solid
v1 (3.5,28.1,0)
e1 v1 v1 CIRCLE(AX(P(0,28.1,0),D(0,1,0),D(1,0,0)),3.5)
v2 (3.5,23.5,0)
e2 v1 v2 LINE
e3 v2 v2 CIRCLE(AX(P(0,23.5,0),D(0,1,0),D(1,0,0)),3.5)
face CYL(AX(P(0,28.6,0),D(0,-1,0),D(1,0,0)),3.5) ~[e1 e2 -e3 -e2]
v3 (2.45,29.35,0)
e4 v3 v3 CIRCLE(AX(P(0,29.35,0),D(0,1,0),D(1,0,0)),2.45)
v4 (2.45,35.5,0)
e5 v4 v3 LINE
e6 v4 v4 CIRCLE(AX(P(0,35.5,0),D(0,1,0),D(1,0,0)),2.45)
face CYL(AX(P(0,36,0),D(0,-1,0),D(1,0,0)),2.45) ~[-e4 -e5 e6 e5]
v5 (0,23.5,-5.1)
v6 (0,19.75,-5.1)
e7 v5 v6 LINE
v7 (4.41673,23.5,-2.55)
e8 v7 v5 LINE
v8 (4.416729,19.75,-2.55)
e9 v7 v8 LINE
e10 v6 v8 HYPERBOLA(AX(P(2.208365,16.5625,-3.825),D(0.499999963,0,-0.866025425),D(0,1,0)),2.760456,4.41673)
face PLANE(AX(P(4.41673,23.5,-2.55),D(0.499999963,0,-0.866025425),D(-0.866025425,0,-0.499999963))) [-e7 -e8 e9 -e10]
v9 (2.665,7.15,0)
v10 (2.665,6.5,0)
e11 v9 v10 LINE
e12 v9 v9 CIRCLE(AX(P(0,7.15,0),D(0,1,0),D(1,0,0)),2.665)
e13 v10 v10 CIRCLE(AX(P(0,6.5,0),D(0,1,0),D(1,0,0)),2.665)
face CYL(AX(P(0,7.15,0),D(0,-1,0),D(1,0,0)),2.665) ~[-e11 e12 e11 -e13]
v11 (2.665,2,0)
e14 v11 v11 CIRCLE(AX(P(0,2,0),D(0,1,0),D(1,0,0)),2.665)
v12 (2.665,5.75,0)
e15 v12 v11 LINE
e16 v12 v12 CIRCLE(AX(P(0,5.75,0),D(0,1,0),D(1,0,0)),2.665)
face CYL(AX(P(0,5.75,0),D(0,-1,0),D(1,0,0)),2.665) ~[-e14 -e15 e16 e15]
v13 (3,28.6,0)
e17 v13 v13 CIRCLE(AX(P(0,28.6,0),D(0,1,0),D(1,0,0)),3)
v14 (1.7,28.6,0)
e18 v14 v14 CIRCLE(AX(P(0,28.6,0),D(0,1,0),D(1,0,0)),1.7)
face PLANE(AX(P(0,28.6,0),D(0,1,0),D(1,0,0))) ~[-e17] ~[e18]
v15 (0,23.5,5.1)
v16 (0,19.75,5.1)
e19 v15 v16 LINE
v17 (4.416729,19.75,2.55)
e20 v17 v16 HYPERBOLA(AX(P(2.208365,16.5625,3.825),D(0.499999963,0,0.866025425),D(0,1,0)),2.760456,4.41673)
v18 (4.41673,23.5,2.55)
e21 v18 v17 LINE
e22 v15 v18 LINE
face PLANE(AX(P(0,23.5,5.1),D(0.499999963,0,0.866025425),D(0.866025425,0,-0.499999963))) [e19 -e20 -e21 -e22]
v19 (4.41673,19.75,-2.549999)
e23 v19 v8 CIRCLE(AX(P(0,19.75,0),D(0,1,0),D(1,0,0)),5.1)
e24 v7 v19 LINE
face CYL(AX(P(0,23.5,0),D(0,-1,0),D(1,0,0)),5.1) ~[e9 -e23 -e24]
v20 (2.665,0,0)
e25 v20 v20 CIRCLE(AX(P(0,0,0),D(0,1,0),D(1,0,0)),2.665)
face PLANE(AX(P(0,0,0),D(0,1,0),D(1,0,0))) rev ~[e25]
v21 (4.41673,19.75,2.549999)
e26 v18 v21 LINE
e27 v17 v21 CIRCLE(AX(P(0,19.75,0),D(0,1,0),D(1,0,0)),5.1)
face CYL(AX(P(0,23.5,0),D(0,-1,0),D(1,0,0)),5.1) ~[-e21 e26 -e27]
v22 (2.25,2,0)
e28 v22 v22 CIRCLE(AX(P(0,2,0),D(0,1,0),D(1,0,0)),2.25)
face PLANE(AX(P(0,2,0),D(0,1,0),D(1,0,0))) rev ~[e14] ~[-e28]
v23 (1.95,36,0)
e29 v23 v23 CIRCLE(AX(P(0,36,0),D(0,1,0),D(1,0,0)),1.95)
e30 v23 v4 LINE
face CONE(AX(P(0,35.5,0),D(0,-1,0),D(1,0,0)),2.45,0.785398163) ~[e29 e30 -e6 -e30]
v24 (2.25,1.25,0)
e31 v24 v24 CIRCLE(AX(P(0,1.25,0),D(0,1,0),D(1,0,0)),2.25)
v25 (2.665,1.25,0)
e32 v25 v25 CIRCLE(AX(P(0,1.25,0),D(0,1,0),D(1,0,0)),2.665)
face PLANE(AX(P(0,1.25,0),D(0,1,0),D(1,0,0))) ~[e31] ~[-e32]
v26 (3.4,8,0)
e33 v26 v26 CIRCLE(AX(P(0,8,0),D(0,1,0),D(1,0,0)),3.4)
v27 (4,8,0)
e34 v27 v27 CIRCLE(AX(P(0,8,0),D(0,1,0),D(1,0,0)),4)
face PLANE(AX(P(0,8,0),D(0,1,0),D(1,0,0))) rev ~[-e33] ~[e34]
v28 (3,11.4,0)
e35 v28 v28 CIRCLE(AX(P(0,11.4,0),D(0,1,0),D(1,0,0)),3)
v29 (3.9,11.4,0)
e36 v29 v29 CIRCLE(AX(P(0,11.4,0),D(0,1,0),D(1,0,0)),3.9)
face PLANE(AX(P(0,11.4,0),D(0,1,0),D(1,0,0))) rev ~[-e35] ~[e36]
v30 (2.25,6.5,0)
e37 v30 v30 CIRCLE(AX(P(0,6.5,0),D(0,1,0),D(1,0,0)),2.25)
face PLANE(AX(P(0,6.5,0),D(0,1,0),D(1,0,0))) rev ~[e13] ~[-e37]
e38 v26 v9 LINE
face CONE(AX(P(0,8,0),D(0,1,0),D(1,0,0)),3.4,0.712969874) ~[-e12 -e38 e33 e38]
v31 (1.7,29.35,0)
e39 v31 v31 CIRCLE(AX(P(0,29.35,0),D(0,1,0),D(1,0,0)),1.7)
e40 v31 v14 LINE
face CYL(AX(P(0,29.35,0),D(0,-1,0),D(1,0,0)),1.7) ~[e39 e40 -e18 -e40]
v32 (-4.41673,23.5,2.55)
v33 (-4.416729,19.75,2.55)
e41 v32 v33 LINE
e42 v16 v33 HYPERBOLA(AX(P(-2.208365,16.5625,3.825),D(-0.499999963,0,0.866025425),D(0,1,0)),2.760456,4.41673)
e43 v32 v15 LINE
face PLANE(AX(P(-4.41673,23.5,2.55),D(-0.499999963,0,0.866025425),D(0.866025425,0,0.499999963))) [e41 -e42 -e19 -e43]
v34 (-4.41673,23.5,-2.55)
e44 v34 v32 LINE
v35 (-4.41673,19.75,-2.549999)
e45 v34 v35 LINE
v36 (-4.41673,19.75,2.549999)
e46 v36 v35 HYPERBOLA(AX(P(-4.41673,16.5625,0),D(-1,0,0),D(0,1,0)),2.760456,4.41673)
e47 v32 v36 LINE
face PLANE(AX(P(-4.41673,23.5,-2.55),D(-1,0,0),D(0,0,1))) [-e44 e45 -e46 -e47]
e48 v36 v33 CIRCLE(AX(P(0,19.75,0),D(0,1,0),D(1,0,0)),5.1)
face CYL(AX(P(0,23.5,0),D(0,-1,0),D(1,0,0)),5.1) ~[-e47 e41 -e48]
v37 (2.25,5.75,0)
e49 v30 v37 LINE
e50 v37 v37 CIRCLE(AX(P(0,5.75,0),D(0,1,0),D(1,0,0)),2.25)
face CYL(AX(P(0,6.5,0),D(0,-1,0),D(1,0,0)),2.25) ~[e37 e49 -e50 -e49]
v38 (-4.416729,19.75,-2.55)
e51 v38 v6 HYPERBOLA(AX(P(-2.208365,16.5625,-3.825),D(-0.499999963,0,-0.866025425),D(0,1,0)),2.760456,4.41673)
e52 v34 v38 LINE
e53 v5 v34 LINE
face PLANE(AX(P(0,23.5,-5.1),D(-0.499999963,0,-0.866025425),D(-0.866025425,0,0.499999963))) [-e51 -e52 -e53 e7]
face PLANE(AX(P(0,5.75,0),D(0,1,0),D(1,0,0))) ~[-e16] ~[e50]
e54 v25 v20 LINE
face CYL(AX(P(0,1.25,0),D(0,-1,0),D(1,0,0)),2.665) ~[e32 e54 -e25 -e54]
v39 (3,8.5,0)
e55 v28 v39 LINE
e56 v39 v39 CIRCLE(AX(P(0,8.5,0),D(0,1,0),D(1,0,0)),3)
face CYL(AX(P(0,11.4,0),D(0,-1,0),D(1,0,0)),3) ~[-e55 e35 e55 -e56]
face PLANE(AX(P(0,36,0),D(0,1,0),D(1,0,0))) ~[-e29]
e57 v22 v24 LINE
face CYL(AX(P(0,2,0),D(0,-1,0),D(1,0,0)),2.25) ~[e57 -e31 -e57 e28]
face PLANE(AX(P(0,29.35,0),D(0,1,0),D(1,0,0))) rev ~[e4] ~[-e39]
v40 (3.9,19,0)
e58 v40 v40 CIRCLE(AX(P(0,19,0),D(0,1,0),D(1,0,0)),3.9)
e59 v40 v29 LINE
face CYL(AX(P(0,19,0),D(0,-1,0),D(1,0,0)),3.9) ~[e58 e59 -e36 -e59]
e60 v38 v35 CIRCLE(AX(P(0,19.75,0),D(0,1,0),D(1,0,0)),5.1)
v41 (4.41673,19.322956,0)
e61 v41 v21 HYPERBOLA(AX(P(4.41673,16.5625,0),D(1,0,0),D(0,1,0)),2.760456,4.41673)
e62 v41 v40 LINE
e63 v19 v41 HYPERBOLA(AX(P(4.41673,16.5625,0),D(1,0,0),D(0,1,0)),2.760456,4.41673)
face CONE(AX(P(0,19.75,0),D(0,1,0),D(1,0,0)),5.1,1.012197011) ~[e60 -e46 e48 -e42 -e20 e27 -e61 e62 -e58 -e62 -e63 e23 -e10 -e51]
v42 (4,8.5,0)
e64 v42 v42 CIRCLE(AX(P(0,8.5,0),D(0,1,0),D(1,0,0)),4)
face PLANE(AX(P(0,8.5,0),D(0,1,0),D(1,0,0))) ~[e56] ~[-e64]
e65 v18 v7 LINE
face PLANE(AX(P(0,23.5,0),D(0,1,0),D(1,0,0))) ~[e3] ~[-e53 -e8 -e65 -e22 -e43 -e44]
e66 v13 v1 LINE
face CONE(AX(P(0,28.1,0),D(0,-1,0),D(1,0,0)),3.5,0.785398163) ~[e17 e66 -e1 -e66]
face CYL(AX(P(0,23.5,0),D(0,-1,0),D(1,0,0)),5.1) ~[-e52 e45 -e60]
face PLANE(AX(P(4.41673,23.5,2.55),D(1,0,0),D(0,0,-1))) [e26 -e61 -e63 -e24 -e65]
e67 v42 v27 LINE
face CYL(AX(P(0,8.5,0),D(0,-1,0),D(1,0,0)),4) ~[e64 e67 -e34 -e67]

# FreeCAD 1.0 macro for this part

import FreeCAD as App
import Part
import Sketcher

V = App.Vector
Q = App.Units.Quantity


def edges_at(feature, points):
    """Names of the edges that pass closest to the given points."""
    edges = feature.Shape.Edges
    near = lambda p: min(range(len(edges)), key=lambda i: edges[i].distToShape(Part.Vertex(*p))[0])
    return sorted({f"Edge{near(p) + 1}" for p in points})


def add_polygon(sketch, points):
    """Adds a closed chain of lines whose ends are joined by coincident constraints."""
    first, n = sketch.GeometryCount, len(points)
    for a, b in zip(points, points[1:] + points[:1]):
        sketch.addGeometry(Part.LineSegment(App.Vector(*a, 0), App.Vector(*b, 0)), False)
    for i in range(n):
        sketch.addConstraint(Sketcher.Constraint("Coincident", first + i, 2, first + (i + 1) % n, 1))

doc = App.newDocument("Part")
params = doc.addObject("Spreadsheet::Sheet", "Params")
for row, (alias, value) in enumerate([
    ("sketch1_width", "1 mm"),
    ("sketch1_height", "36 mm"),
    ("sketch1_width2", "0.6 mm"),
    ("sketch1_width3", "0.9 mm"),
    ("sketch1_width4", "1.6 mm"),
    ("revolution_angle", "360 deg"),
    ("sketch2_diameter", "12 mm"),
    ("sketch2_height", "5.1 mm"),
    ("sketch2_length", "5.1 mm"),
    ("pocket1_length", "5 mm"),
    ("chamfer_size", "0.5 mm"),
], start=1):
    params.set(f"A{row}", alias)
    params.set(f"B{row}", "=" + value)
    params.setAlias(f"B{row}", alias)

body = doc.addObject("PartDesign::Body", "Body")

sketch1 = body.newObject("Sketcher::SketchObject", "Sketch")
sketch1.AttachmentSupport = (doc.getObject("XY_Plane"), [""])
sketch1.MapMode = "FlatFace"
add_polygon(sketch1, [(0, 36), (0, 0), (2.67, 0), (2.67, 1.25), (2.25, 1.25), (2.25, 2), (2.67, 2), (2.67, 5.75), (2.25, 5.75), (2.25, 6.5), (2.67, 6.5), (2.67, 7.15), (3.4, 8), (4, 8), (4, 8.5), (3, 8.5), (3, 11.4), (3.9, 11.4), (3.9, 19), (5.1, 19.75), (5.1, 23.5), (3.5, 23.5), (3.5, 28.6), (1.7, 28.6), (1.7, 29.35), (2.45, 29.35), (2.45, 36)])
sketch1.addConstraint([
    Sketcher.Constraint("Vertical", 0),
    Sketcher.Constraint("Horizontal", 1),
    Sketcher.Constraint("Vertical", 2),
    Sketcher.Constraint("Horizontal", 3),
    Sketcher.Constraint("Vertical", 4),
    Sketcher.Constraint("Horizontal", 5),
    Sketcher.Constraint("Vertical", 6),
    Sketcher.Constraint("Horizontal", 7),
    Sketcher.Constraint("Vertical", 8),
    Sketcher.Constraint("Horizontal", 9),
    Sketcher.Constraint("Vertical", 10),
    Sketcher.Constraint("Horizontal", 12),
    Sketcher.Constraint("Vertical", 13),
    Sketcher.Constraint("Horizontal", 14),
    Sketcher.Constraint("Vertical", 15),
    Sketcher.Constraint("Horizontal", 16),
    Sketcher.Constraint("Vertical", 17),
    Sketcher.Constraint("Vertical", 19),
    Sketcher.Constraint("Horizontal", 20),
    Sketcher.Constraint("Vertical", 21),
    Sketcher.Constraint("Horizontal", 22),
    Sketcher.Constraint("Vertical", 23),
    Sketcher.Constraint("Horizontal", 24),
    Sketcher.Constraint("Vertical", 25),
    Sketcher.Constraint("Horizontal", 26),
    Sketcher.Constraint("Coincident", 0, 2, -1, 1),
    Sketcher.Constraint("Vertical", 2, 2, 5, 2),
    Sketcher.Constraint("Vertical", 4, 2, 7, 2),
    Sketcher.Constraint("Vertical", 6, 2, 9, 2),
    Sketcher.Constraint("Equal", 24, 4),
    Sketcher.Constraint("Equal", 4, 8),
    Sketcher.Constraint("Equal", 6, 19),
    Sketcher.Constraint("Equal", 8, 23),
    Sketcher.Constraint("DistanceX", 14, 2, 14, 1, 1.0),
    Sketcher.Constraint("DistanceY", 0, 2, 0, 1, 36.0),
    Sketcher.Constraint("DistanceX", 12, 1, 12, 2, 0.6),
    Sketcher.Constraint("DistanceX", 16, 1, 16, 2, 0.9),
    Sketcher.Constraint("DistanceX", 20, 2, 20, 1, 1.6),
    Sketcher.Constraint("DistanceX", 22, 2, 22, 1, 1.8),
    Sketcher.Constraint("DistanceY", 13, 1, 13, 2, 0.5),
    Sketcher.Constraint("DistanceY", 15, 1, 15, 2, 2.9),
    Sketcher.Constraint("DistanceY", 17, 1, 17, 2, 7.6),
    Sketcher.Constraint("DistanceY", 21, 1, 21, 2, 5.1),
    Sketcher.Constraint("DistanceY", -1, 1, 4, 2, 2.0),
    Sketcher.Constraint("DistanceY", -1, 1, 11, 2, 8.0),
    Sketcher.Constraint("DistanceX", -1, 1, 12, 2, 4.0),
    Sketcher.Constraint("DistanceY", 9, 2, 13, 2, 2.0),
    Sketcher.Constraint("DistanceY", 13, 2, 19, 2, 15.0),
    Sketcher.Constraint("DistanceX", 24, 1, 24, 2, 0.75),
    Sketcher.Constraint("DistanceX", 26, 2, 26, 1, 2.45),
    Sketcher.Constraint("DistanceY", 10, 1, 10, 2, 0.65),
    Sketcher.Constraint("DistanceX", 1, 1, 1, 2, 2.665),
    Sketcher.Constraint("DistanceX", 3, 2, 3, 1, 0.415),
])
sketch1.setExpression("Constraints[60]", "Params.sketch1_width")
sketch1.setExpression("Constraints[61]", "Params.sketch1_height")
sketch1.setExpression("Constraints[62]", "Params.sketch1_width2")
sketch1.setExpression("Constraints[63]", "Params.sketch1_width3")
sketch1.setExpression("Constraints[64]", "Params.sketch1_width4")
revolution = body.newObject("PartDesign::Revolution", "Revolution")
revolution.Profile = sketch1
revolution.ReferenceAxis = (sketch1, ["V_Axis"])
revolution.setExpression("Angle", "Params.revolution_angle")

sketch2 = body.newObject("Sketcher::SketchObject", "Sketch001")
sketch2.AttachmentSupport = (doc.getObject("XZ_Plane"), [""])
sketch2.MapMode = "FlatFace"
sketch2.AttachmentOffset = App.Placement(V(0, 0, -23.5), App.Rotation())
sketch2.addGeometry(Part.Circle(V(0, 0, 0), V(0, 0, 1), 6), False)
add_polygon(sketch2, [(0, 5), (-4, 3), (-4, -3), (0, -5), (4, -3), (4, 3)])
sketch2.addConstraint([
    Sketcher.Constraint("Vertical", 2),
    Sketcher.Constraint("Vertical", 5),
    Sketcher.Constraint("Coincident", 0, 3, -1, 1),
    Sketcher.Constraint("Symmetric", 1, 2, 4, 2, -1, 1),
    Sketcher.Constraint("Symmetric", 3, 2, 6, 2, -1, 1),
    Sketcher.Constraint("PointOnObject", 3, 2, -2),
    Sketcher.Constraint("Parallel", 3, 6),
    Sketcher.Constraint("Horizontal", 2, 2, 4, 2),
    Sketcher.Constraint("Diameter", 0, 12.0),
    Sketcher.Constraint("Angle", 1, Q("-150.000002 deg")),
    Sketcher.Constraint("DistanceY", 2, 2, 2, 1, 5.1),
    Sketcher.Constraint("Distance", 1, 5.1),
])
sketch2.setExpression("Constraints[14]", "Params.sketch2_diameter")
sketch2.setExpression("Constraints[16]", "Params.sketch2_height")
sketch2.setExpression("Constraints[17]", "Params.sketch2_length")
pocket1 = body.newObject("PartDesign::Pocket", "Pocket")
pocket1.Profile = sketch2
pocket1.setExpression("Length", "Params.pocket1_length")
pocket1.Reversed = True
doc.recompute()

chamfer = body.newObject("PartDesign::Chamfer", "Chamfer")
chamfer.Base = (pocket1, edges_at(pocket1, [
    (4.158, 19.161, 0),
    (2.25, 1.625, 0),
    (-3.5, 28.6, 0),
    (-2.45, 36, 0),
]))
chamfer.setExpression("Size", "Params.chamfer_size")

doc.recompute()
